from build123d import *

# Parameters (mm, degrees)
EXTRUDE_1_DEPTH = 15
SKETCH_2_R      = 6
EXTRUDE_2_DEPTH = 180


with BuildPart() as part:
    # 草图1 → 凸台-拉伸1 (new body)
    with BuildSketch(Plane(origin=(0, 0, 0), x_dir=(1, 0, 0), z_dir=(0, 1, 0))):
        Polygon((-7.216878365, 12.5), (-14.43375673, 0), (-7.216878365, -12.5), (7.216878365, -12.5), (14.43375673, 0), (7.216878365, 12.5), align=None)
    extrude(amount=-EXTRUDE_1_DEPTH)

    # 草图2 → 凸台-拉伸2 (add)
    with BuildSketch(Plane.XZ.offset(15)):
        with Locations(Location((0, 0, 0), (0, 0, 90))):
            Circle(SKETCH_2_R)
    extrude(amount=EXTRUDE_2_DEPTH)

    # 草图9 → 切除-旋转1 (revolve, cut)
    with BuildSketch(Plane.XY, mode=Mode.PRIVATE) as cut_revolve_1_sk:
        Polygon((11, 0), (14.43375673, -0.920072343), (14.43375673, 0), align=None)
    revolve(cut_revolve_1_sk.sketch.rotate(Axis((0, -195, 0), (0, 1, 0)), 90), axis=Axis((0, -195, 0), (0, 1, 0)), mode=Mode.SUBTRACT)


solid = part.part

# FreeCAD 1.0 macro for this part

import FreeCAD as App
import Part
import Sketcher
from FreeCAD import Vector
Q = App.Units.Quantity


def add_polygon(sketch, points):
    """Adds a closed chain of lines whose ends are joined by coincident constraints."""
    first, n = sketch.GeometryCount, len(points)
    for a, b in zip(points, points[1:] + points[:1]):
        sketch.addGeometry(Part.LineSegment(App.Vector(*a, 0), App.Vector(*b, 0)), False)
    for i in range(n):
        sketch.addConstraint(Sketcher.Constraint("Coincident", first + i, 2, first + (i + 1) % n, 1))

doc = App.newDocument("Part")
body = doc.addObject("PartDesign::Body", "Body")

sketch1 = body.newObject("Sketcher::SketchObject", "Sketch")
sketch1.AttachmentSupport = (doc.getObject("XZ_Plane"), [""])
sketch1.MapMode = "FlatFace"
add_polygon(sketch1, [(-7.216878, -12.5), (-14.433757, 0), (-7.216878, 12.5), (7.216878, 12.5), (14.433757, 0), (7.216878, -12.5)])
sketch1.addConstraint(Sketcher.Constraint("Horizontal", 2))
sketch1.addConstraint(Sketcher.Constraint("Horizontal", 5))
sketch1.addConstraint(Sketcher.Constraint("Symmetric", 0, 2, 3, 2, -1, 1))
sketch1.addConstraint(Sketcher.Constraint("Symmetric", 1, 2, 4, 2, -1, 1))
sketch1.addConstraint(Sketcher.Constraint("PointOnObject", 0, 2, -1))
sketch1.addConstraint(Sketcher.Constraint("Parallel", 0, 3))
sketch1.addConstraint(Sketcher.Constraint("Vertical", 2, 2, 4, 2))
sketch1.addConstraint(Sketcher.Constraint("Angle", 0, Q("120 deg")))
sketch1.addConstraint(Sketcher.Constraint("DistanceY", 4, 2, 2, 2, 25.0))
sketch1.addConstraint(Sketcher.Constraint("DistanceX", 2, 1, 2, 2, 14.433757))
pad1 = body.newObject("PartDesign::Pad", "Pad")
pad1.Profile = sketch1
pad1.Length = 15

sketch2 = body.newObject("Sketcher::SketchObject", "Sketch001")
sketch2.AttachmentSupport = (doc.getObject("XZ_Plane"), [""])
sketch2.MapMode = "FlatFace"
sketch2.AttachmentOffset = App.Placement(Vector(0, 0, 15), App.Rotation())
sketch2.addGeometry(Part.Circle(Vector(0, 0, 0), Vector(0, 0, 1), 6), False)
sketch2.addConstraint(Sketcher.Constraint("Coincident", 0, 3, -1, 1))
sketch2.addConstraint(Sketcher.Constraint("Diameter", 0, 12.0))
pad2 = body.newObject("PartDesign::Pad", "Pad001")
pad2.Profile = sketch2
pad2.Length = 180

sketch3 = body.newObject("Sketcher::SketchObject", "Sketch002")
sketch3.AttachmentSupport = (doc.getObject("XY_Plane"), [""])
sketch3.MapMode = "FlatFace"
add_polygon(sketch3, [(11, 0), (14.433757, -0.920072), (14.433757, 0)])
sketch3.addConstraint(Sketcher.Constraint("Vertical", 1))
sketch3.addConstraint(Sketcher.Constraint("Horizontal", 2))
sketch3.addConstraint(Sketcher.Constraint("PointOnObject", 1, 2, -1))
sketch3.addConstraint(Sketcher.Constraint("Angle", 0, Q("-15 deg")))
sketch3.addConstraint(Sketcher.Constraint("DistanceX", -1, 1, 2, 2, 11.0))
sketch3.addConstraint(Sketcher.Constraint("DistanceX", 2, 2, 2, 1, 3.433757))
groove = body.newObject("PartDesign::Groove", "Groove")
groove.Profile = sketch3
groove.ReferenceAxis = (sketch3, ["V_Axis"])
groove.Angle = 360

doc.recompute()
